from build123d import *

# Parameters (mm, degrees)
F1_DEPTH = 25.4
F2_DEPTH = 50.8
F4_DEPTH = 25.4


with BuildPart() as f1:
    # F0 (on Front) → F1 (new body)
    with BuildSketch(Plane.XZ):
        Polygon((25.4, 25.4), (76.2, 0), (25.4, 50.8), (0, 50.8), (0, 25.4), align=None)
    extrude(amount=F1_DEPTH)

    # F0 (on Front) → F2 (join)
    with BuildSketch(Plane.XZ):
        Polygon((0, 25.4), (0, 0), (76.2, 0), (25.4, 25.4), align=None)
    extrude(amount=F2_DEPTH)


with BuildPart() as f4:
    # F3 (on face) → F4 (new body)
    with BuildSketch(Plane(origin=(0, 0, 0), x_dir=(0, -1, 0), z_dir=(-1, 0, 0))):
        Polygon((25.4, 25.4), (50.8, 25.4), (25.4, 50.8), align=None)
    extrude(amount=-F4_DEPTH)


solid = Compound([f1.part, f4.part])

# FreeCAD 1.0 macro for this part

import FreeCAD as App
import Part
import Sketcher
Q = App.Units.Quantity

doc = App.newDocument("Part")
body = doc.addObject("PartDesign::Body", "Body")

# Sketch on XZ plane
sketch1 = body.newObject("Sketcher::SketchObject", "Sketch")
sketch1.AttachmentSupport = (doc.getObject("XZ_Plane"), [""])
sketch1.MapMode = "FlatFace"
sketch1.addGeometry([
    Part.LineSegment(App.Vector(25, 25, 0), App.Vector(76, 0, 0)),  # 0
    Part.LineSegment(App.Vector(76, 0, 0), App.Vector(25, 51, 0)),  # 1
    Part.LineSegment(App.Vector(25, 51, 0), App.Vector(0, 51, 0)),  # 2
    Part.LineSegment(App.Vector(0, 51, 0), App.Vector(0, 25, 0)),  # 3
    Part.LineSegment(App.Vector(0, 25, 0), App.Vector(25, 25, 0)),  # 4
], False)
sketch1.addConstraint([
    Sketcher.Constraint("Coincident", 0, 2, 1, 1),
    Sketcher.Constraint("Coincident", 1, 2, 2, 1),
    Sketcher.Constraint("Coincident", 2, 2, 3, 1),
    Sketcher.Constraint("Coincident", 3, 2, 4, 1),
    Sketcher.Constraint("Coincident", 4, 2, 0, 1),
    Sketcher.Constraint("Horizontal", 2),
    Sketcher.Constraint("Vertical", 3),
    Sketcher.Constraint("Horizontal", 4),
    Sketcher.Constraint("PointOnObject", 0, 2, -1),
    Sketcher.Constraint("PointOnObject", 2, 2, -2),
    Sketcher.Constraint("Vertical", 1, 2, 4, 2),
    Sketcher.Constraint("Equal", 4, 3),
    Sketcher.Constraint("DistanceX", 2, 2, 2, 1, Q("1 in")),
    Sketcher.Constraint("DistanceX", -1, 1, 0, 2, Q("3 in")),
    Sketcher.Constraint("DistanceY", -1, 1, 1, 2, Q("2 in")),
])
pad1 = body.newObject("PartDesign::Pad", "Pad")
pad1.Profile = sketch1
pad1.Length = Q("1 in")

# Sketch on XZ plane
sketch2 = body.newObject("Sketcher::SketchObject", "Sketch001")
sketch2.AttachmentSupport = (doc.getObject("XZ_Plane"), [""])
sketch2.MapMode = "FlatFace"
sketch2.addGeometry([
    Part.LineSegment(App.Vector(0, 25, 0), App.Vector(0, 0, 0)),
    Part.LineSegment(App.Vector(0, 0, 0), App.Vector(76, 0, 0)),
    Part.LineSegment(App.Vector(76, 0, 0), App.Vector(25, 25, 0)),
    Part.LineSegment(App.Vector(25, 25, 0), App.Vector(0, 25, 0)),
], False)
sketch2.addConstraint([
    Sketcher.Constraint("Coincident", 0, 2, 1, 1),
    Sketcher.Constraint("Coincident", 1, 2, 2, 1),
    Sketcher.Constraint("Coincident", 2, 2, 3, 1),
    Sketcher.Constraint("Coincident", 3, 2, 0, 1),
    Sketcher.Constraint("Vertical", 0),
    Sketcher.Constraint("Horizontal", 1),
    Sketcher.Constraint("Horizontal", 3),
    Sketcher.Constraint("Coincident", 0, 2, -1, 1),
    Sketcher.Constraint("Equal", 3, 0),
    Sketcher.Constraint("DistanceX", 1, 1, 1, 2, Q("3 in")),
    Sketcher.Constraint("DistanceX", 3, 2, 3, 1, Q("1 in")),
])
pad2 = body.newObject("PartDesign::Pad", "Pad001")
pad2.Profile = sketch2
pad2.Length = Q("2 in")
body2 = doc.addObject("PartDesign::Body", "Body001")

# Sketch on YZ plane
sketch3 = body2.newObject("Sketcher::SketchObject", "Sketch002")
sketch3.AttachmentSupport = (doc.getObject("YZ_Plane001"), [""])
sketch3.MapMode = "FlatFace"
sketch3.addGeometry([
    Part.LineSegment(App.Vector(-25, 25, 0), App.Vector(-51, 25, 0)),
    Part.LineSegment(App.Vector(-51, 25, 0), App.Vector(-25, 51, 0)),
    Part.LineSegment(App.Vector(-25, 51, 0), App.Vector(-25, 25, 0)),
], False)
sketch3.addConstraint([
    Sketcher.Constraint("Coincident", 0, 2, 1, 1),
    Sketcher.Constraint("Coincident", 1, 2, 2, 1),
    Sketcher.Constraint("Coincident", 2, 2, 0, 1),
    Sketcher.Constraint("Horizontal", 0),
    Sketcher.Constraint("Vertical", 2),
    Sketcher.Constraint("Equal", 0, 2),
    Sketcher.Constraint("DistanceX", 0, 2, 0, 1, Q("1 in")),
    Sketcher.Constraint("DistanceX", 0, 2, -1, 1, Q("2 in")),
    Sketcher.Constraint("DistanceY", -1, 1, 0, 2, Q("1 in")),
])
pad3 = body2.newObject("PartDesign::Pad", "Pad002")
pad3.Profile = sketch3
pad3.Length = Q("1 in")

doc.recompute()
